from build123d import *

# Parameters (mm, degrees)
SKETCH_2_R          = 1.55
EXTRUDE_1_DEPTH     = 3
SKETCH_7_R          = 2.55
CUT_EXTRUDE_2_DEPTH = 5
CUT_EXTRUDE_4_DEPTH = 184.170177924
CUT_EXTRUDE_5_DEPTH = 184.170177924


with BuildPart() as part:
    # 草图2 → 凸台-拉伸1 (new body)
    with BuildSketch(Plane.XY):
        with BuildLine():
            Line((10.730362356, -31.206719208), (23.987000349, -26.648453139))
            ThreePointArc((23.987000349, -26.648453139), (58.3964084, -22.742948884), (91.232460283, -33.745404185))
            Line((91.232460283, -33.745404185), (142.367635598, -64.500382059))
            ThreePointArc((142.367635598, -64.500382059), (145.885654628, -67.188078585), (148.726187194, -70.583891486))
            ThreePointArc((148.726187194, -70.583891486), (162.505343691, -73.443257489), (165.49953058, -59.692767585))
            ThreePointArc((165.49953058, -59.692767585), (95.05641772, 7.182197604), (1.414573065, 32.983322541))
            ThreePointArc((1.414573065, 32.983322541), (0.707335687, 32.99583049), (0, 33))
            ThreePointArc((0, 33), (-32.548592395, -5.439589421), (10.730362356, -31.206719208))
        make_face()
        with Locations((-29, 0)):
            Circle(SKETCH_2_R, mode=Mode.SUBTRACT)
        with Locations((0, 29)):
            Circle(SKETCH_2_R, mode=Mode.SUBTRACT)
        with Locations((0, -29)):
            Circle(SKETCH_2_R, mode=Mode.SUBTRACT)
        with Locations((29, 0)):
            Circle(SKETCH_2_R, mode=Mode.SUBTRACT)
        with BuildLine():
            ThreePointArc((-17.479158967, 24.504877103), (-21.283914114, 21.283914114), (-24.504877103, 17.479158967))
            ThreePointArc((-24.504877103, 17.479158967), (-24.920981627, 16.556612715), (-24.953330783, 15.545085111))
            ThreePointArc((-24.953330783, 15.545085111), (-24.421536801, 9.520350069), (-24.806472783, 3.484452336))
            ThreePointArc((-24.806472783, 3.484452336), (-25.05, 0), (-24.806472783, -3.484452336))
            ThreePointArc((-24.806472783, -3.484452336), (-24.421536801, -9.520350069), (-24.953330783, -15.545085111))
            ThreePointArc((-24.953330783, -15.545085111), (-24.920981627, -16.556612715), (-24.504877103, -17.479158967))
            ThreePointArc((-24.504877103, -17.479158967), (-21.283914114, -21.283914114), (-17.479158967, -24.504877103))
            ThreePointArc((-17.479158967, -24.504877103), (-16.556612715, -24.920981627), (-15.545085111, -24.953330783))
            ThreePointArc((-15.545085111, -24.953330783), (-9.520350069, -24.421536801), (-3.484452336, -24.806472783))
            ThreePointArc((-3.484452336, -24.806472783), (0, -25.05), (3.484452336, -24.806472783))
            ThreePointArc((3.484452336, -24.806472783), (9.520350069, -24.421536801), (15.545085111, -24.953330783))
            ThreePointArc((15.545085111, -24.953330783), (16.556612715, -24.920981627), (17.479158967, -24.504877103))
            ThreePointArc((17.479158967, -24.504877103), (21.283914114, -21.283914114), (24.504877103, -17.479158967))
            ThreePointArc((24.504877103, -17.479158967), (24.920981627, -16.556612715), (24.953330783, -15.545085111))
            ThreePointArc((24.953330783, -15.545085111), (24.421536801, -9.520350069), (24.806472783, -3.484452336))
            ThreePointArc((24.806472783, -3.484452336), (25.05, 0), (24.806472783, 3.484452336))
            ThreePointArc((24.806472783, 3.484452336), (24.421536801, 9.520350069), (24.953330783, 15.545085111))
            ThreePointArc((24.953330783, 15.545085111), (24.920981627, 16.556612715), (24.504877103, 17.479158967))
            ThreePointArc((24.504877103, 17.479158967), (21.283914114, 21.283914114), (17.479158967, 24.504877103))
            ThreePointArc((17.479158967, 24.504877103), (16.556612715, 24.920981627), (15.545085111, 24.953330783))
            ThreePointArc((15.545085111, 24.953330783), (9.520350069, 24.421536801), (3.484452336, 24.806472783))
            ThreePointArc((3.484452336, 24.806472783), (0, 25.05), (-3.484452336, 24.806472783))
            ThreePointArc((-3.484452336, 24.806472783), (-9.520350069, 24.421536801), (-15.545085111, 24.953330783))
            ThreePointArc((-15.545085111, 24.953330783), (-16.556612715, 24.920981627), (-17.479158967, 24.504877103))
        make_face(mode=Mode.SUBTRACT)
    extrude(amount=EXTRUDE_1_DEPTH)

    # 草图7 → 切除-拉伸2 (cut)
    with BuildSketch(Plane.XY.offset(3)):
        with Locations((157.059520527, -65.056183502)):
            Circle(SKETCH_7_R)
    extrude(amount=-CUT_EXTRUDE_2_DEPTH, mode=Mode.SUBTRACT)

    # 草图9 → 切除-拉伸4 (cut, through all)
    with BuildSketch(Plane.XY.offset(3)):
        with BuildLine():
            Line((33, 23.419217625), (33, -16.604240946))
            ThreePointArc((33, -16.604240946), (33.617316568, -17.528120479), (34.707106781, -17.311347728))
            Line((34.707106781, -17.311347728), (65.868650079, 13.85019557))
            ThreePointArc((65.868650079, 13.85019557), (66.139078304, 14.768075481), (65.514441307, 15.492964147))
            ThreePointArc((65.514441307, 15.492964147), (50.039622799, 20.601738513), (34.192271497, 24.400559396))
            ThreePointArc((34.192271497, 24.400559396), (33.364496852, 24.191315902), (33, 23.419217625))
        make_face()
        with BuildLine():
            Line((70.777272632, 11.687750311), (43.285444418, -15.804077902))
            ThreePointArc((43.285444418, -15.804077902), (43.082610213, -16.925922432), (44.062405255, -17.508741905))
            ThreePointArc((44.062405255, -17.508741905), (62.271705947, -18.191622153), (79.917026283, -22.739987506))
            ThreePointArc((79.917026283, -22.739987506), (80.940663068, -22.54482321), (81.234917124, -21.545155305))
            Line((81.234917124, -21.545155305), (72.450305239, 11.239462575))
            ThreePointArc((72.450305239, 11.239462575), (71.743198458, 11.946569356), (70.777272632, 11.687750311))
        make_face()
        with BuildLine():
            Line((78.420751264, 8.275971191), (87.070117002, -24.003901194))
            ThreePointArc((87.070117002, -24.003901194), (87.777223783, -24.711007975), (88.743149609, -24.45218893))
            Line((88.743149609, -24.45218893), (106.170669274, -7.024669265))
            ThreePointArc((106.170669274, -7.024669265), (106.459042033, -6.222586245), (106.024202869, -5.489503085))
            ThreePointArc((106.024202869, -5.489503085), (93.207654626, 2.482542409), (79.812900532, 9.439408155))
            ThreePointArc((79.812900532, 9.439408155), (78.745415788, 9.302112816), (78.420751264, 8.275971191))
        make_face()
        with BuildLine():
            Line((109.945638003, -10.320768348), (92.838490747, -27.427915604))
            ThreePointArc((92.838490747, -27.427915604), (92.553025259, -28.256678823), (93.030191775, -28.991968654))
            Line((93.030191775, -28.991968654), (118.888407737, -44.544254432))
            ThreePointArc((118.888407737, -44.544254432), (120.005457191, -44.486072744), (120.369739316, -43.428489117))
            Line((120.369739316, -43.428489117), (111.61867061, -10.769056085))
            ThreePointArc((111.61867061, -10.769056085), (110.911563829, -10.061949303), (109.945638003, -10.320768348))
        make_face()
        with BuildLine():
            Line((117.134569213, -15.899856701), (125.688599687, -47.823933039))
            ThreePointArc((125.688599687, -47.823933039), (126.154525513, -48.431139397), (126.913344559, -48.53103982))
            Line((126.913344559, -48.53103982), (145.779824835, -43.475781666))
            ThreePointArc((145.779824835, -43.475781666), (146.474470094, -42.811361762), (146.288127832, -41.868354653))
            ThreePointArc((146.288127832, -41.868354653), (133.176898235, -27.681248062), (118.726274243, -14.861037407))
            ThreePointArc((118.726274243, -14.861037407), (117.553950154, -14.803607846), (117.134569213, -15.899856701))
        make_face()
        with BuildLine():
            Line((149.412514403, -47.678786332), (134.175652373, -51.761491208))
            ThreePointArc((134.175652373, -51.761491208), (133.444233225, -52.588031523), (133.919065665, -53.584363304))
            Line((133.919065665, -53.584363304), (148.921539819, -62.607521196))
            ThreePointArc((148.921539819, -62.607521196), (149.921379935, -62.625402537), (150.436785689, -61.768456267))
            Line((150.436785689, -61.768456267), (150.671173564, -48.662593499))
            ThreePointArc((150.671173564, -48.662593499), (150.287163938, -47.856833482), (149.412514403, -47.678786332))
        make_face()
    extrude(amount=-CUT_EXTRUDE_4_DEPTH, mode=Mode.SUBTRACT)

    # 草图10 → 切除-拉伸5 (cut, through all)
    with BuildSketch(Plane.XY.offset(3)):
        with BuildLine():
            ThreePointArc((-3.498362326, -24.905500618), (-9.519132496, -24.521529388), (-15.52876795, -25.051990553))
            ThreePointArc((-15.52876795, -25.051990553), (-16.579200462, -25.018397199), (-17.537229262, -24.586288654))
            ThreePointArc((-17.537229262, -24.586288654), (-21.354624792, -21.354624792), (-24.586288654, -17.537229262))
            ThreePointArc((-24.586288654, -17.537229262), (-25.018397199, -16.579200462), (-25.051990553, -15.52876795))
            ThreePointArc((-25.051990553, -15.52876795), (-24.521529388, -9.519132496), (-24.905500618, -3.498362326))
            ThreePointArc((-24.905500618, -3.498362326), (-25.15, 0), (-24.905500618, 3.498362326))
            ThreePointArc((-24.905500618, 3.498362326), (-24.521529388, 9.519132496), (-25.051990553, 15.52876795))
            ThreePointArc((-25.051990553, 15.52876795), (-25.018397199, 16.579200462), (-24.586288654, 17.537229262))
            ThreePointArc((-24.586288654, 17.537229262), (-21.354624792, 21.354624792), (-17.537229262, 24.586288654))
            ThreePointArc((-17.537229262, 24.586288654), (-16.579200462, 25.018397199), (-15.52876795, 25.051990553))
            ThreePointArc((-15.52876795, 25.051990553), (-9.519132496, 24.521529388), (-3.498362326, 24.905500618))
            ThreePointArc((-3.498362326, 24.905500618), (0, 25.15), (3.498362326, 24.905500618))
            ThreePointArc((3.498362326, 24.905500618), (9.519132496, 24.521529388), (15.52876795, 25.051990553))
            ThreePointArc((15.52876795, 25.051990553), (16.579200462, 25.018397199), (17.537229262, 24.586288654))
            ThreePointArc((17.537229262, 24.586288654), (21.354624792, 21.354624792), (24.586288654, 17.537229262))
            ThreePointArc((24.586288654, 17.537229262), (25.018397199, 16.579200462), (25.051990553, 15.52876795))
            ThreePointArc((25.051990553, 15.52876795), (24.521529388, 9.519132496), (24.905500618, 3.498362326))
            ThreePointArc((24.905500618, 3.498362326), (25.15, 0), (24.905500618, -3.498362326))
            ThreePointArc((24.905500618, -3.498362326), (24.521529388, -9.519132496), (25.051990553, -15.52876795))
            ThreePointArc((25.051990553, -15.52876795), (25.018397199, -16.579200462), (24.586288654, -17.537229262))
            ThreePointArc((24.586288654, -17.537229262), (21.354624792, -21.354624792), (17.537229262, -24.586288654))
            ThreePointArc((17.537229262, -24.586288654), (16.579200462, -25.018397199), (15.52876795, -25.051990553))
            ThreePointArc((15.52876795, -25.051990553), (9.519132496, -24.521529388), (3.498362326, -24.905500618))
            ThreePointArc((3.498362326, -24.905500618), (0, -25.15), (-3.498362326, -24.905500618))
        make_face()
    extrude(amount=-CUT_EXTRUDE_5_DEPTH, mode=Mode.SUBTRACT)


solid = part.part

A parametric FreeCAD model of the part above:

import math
import FreeCAD as App
import Part
import Sketcher

V = App.Vector
Q = App.Units.Quantity

doc = App.newDocument("Part")
body = doc.addObject("PartDesign::Body", "Body")

# Sketch on XY plane
sketch1 = body.newObject("Sketcher::SketchObject", "Sketch")
sketch1.AttachmentSupport = (doc.getObject("XY_Plane"), [""])
sketch1.MapMode = "FlatFace"
sketch1.addGeometry([
    Part.LineSegment(V(10.730362, -31.206719, 0), V(23.987, -26.648453, 0)),  # 0
    Part.ArcOfCircle(Part.Circle(V(50, -102.301106, 0), V(0, 0, 1), 80), math.radians(58.97542), math.radians(108.97542)),  # 1
    Part.LineSegment(V(91.23246, -33.745404, 0), V(142.367636, -64.500382, 0)),  # 2
    Part.ArcOfCircle(Part.Circle(V(132.059521, -81.639307, 0), V(0, 0, 1), 20), math.radians(33.55731), math.radians(58.97542)),  # 3
    Part.ArcOfCircle(Part.Circle(V(157.059521, -65.056184, 0), V(0, 0, 1), 10), math.radians(-146.44269), math.radians(32.434941)),  # 4
    Part.ArcOfCircle(Part.Circle(V(-3.30067, -166.961086, 0), V(0, 0, 1), 200), math.radians(32.434941), math.radians(88.649057)),  # 5
    Part.ArcOfCircle(Part.Circle(V(0, -27.000006, 0), V(0, 0, 1), 60.000006), math.radians(88.649057), math.radians(90)),  # 6
    Part.ArcOfCircle(Part.Circle(V(0, 0, 0), V(0, 0, 1), 33), math.radians(90), math.radians(288.97542)),  # 7
    Part.Circle(V(0, -29, 0), V(0, 0, 1), 1.55),  # 8
    Part.Circle(V(-29, 0, 0), V(0, 0, 1), 1.55),  # 9
    Part.ArcOfCircle(Part.Circle(V(0, 0, 0), V(0, 0, 1), 30.1), math.radians(125.5), math.radians(144.5)),  # 10
    Part.ArcOfCircle(Part.Circle(V(-15.969331, 22.388177, 0), V(0, 0, 1), 2.6), math.radians(80.608964), math.radians(125.5)),  # 11
    Part.ArcOfCircle(Part.Circle(V(-9.034538, 64.318579, 0), V(0, 0, 1), 39.9), math.radians(-99.391036), math.radians(-82.004236)),  # 12
    Part.ArcOfCircle(Part.Circle(V(0, 0, 0), V(0, 0, 1), 25.05), math.radians(82.004236), math.radians(97.995764)),  # 13
    Part.ArcOfCircle(Part.Circle(V(9.034538, 64.318579, 0), V(0, 0, 1), 39.9), math.radians(-97.995764), math.radians(-80.608964)),  # 14
    Part.ArcOfCircle(Part.Circle(V(15.969331, 22.388177, 0), V(0, 0, 1), 2.6), math.radians(54.5), math.radians(99.391036)),  # 15
    Part.ArcOfCircle(Part.Circle(V(0, 0, 0), V(0, 0, 1), 30.1), math.radians(35.5), math.radians(54.5)),  # 16
    Part.ArcOfCircle(Part.Circle(V(22.388177, 15.969331, 0), V(0, 0, 1), 2.6), math.radians(-9.391036), math.radians(35.5)),  # 17
    Part.ArcOfCircle(Part.Circle(V(64.318579, 9.034538, 0), V(0, 0, 1), 39.9), math.radians(170.608964), math.radians(187.995764)),  # 18
    Part.ArcOfCircle(Part.Circle(V(0, 0, 0), V(0, 0, 1), 25.05), math.radians(-7.995764), math.radians(7.995764)),  # 19
    Part.ArcOfCircle(Part.Circle(V(64.318579, -9.034538, 0), V(0, 0, 1), 39.9), math.radians(172.004236), math.radians(189.391036)),  # 20
    Part.ArcOfCircle(Part.Circle(V(22.388177, -15.969331, 0), V(0, 0, 1), 2.6), math.radians(-35.5), math.radians(9.391036)),  # 21
    Part.ArcOfCircle(Part.Circle(V(0, 0, 0), V(0, 0, 1), 30.1), math.radians(-54.5), math.radians(-35.5)),  # 22
    Part.ArcOfCircle(Part.Circle(V(15.969331, -22.388177, 0), V(0, 0, 1), 2.6), math.radians(-99.391036), math.radians(-54.5)),  # 23
    Part.ArcOfCircle(Part.Circle(V(9.034538, -64.318579, 0), V(0, 0, 1), 39.9), math.radians(80.608964), math.radians(97.995764)),  # 24
    Part.ArcOfCircle(Part.Circle(V(0, 0, 0), V(0, 0, 1), 25.05), math.radians(-97.995764), math.radians(-82.004236)),  # 25
    Part.ArcOfCircle(Part.Circle(V(-9.034538, -64.318579, 0), V(0, 0, 1), 39.9), math.radians(82.004236), math.radians(99.391036)),  # 26
    Part.ArcOfCircle(Part.Circle(V(-15.969331, -22.388177, 0), V(0, 0, 1), 2.6), math.radians(-125.5), math.radians(-80.608964)),  # 27
    Part.ArcOfCircle(Part.Circle(V(0, 0, 0), V(0, 0, 1), 30.1), math.radians(-144.5), math.radians(-125.5)),  # 28
    Part.ArcOfCircle(Part.Circle(V(-22.388177, -15.969331, 0), V(0, 0, 1), 2.6), math.radians(170.608964), math.radians(215.5)),  # 29
    Part.ArcOfCircle(Part.Circle(V(-64.318579, -9.034538, 0), V(0, 0, 1), 39.9), math.radians(-9.391036), math.radians(7.995764)),  # 30
    Part.ArcOfCircle(Part.Circle(V(0, 0, 0), V(0, 0, 1), 25.05), math.radians(172.004236), math.radians(187.995764)),  # 31
    Part.ArcOfCircle(Part.Circle(V(-64.318579, 9.034538, 0), V(0, 0, 1), 39.9), math.radians(-7.995764), math.radians(9.391036)),  # 32
    Part.ArcOfCircle(Part.Circle(V(-22.388177, 15.969331, 0), V(0, 0, 1), 2.6), math.radians(144.5), math.radians(189.391036)),  # 33
    Part.Circle(V(29, 0, 0), V(0, 0, 1), 1.55),  # 34
    Part.Circle(V(0, 29, 0), V(0, 0, 1), 1.55),  # 35
], False)
sketch1.addConstraint([
    Sketcher.Constraint("Tangent", 0, 2, 1, 2),
    Sketcher.Constraint("Tangent", 1, 1, 2, 1),
    Sketcher.Constraint("Tangent", 2, 2, 3, 2),
    Sketcher.Constraint("Tangent", 3, 1, 4, 1),
    Sketcher.Constraint("Tangent", 4, 2, 5, 1),
    Sketcher.Constraint("Tangent", 5, 2, 6, 1),
    Sketcher.Constraint("Tangent", 6, 2, 7, 1),
    Sketcher.Constraint("Tangent", 7, 2, 0, 1),
    Sketcher.Constraint("Tangent", 10, 1, 11, 2),
    Sketcher.Constraint("Tangent", 11, 1, 12, 1),
    Sketcher.Constraint("Tangent", 12, 2, 13, 2),
    Sketcher.Constraint("Tangent", 13, 1, 14, 1),
    Sketcher.Constraint("Tangent", 14, 2, 15, 2),
    Sketcher.Constraint("Tangent", 15, 1, 16, 2),
    Sketcher.Constraint("Tangent", 16, 1, 17, 2),
    Sketcher.Constraint("Tangent", 17, 1, 18, 1),
    Sketcher.Constraint("Tangent", 18, 2, 19, 2),
    Sketcher.Constraint("Tangent", 19, 1, 20, 1),
    Sketcher.Constraint("Tangent", 20, 2, 21, 2),
    Sketcher.Constraint("Tangent", 21, 1, 22, 2),
    Sketcher.Constraint("Tangent", 22, 1, 23, 2),
    Sketcher.Constraint("Tangent", 23, 1, 24, 1),
    Sketcher.Constraint("Tangent", 24, 2, 25, 2),
    Sketcher.Constraint("Tangent", 25, 1, 26, 1),
    Sketcher.Constraint("Tangent", 26, 2, 27, 2),
    Sketcher.Constraint("Tangent", 27, 1, 28, 2),
    Sketcher.Constraint("Tangent", 28, 1, 29, 2),
    Sketcher.Constraint("Tangent", 29, 1, 30, 1),
    Sketcher.Constraint("Tangent", 30, 2, 31, 2),
    Sketcher.Constraint("Tangent", 31, 1, 32, 1),
    Sketcher.Constraint("Tangent", 32, 2, 33, 2),
    Sketcher.Constraint("Tangent", 33, 1, 10, 2),
    Sketcher.Constraint("Coincident", 7, 3, -1, 1),
    Sketcher.Constraint("Coincident", 10, 3, -1, 1),
    Sketcher.Constraint("Coincident", 13, 3, -1, 1),
    Sketcher.Constraint("Coincident", 16, 3, -1, 1),
    Sketcher.Constraint("Coincident", 19, 3, -1, 1),
    Sketcher.Constraint("Coincident", 22, 3, -1, 1),
    Sketcher.Constraint("Coincident", 25, 3, -1, 1),
    Sketcher.Constraint("Coincident", 28, 3, -1, 1),
    Sketcher.Constraint("Coincident", 31, 3, -1, 1),
    Sketcher.Constraint("Equal", 8, 9),
    Sketcher.Constraint("Equal", 12, 14),
    Sketcher.Constraint("Equal", 11, 15),
    Sketcher.Constraint("Equal", 10, 16),
    Sketcher.Constraint("Equal", 15, 17),
    Sketcher.Constraint("Equal", 14, 18),
    Sketcher.Constraint("Equal", 13, 19),
    Sketcher.Constraint("Equal", 18, 20),
    Sketcher.Constraint("Equal", 17, 21),
    Sketcher.Constraint("Equal", 16, 22),
    Sketcher.Constraint("Equal", 21, 23),
    Sketcher.Constraint("Equal", 20, 24),
    Sketcher.Constraint("Equal", 19, 25),
    Sketcher.Constraint("Equal", 24, 26),
    Sketcher.Constraint("Equal", 23, 27),
    Sketcher.Constraint("Equal", 22, 28),
    Sketcher.Constraint("Equal", 27, 29),
    Sketcher.Constraint("Equal", 26, 30),
    Sketcher.Constraint("Equal", 25, 31),
    Sketcher.Constraint("Equal", 30, 32),
    Sketcher.Constraint("Equal", 29, 33),
    Sketcher.Constraint("Equal", 9, 34),
    Sketcher.Constraint("Equal", 34, 35),
    Sketcher.Constraint("Symmetric", 9, 3, 34, 3, -1, 1),
    Sketcher.Constraint("Symmetric", 8, 3, 35, 3, -1, 1),
    Sketcher.Constraint("PointOnObject", 6, 3, -2),
    Sketcher.Constraint("PointOnObject", 8, 3, -2),
    Sketcher.Constraint("PointOnObject", 9, 3, -1),
    Sketcher.Constraint("Horizontal", 12, 3, 14, 3),
    Sketcher.Constraint("Horizontal", 24, 3, 26, 3),
    Sketcher.Constraint("Horizontal", 21, 3, 29, 3),
    Sketcher.Constraint("Horizontal", 18, 3, 32, 3),
    Sketcher.Constraint("Vertical", 18, 3, 20, 3),
    Sketcher.Constraint("Vertical", 15, 3, 23, 3),
    Sketcher.Constraint("Radius", 1, 80.0),
    Sketcher.Constraint("Radius", 3, 20.0),
    Sketcher.Constraint("Radius", 4, 10.0),
    Sketcher.Constraint("Radius", 5, 200.0),
    Sketcher.Constraint("Radius", 7, 33.0),
    Sketcher.Constraint("Diameter", 8, 3.1),
    Sketcher.Constraint("Radius", 10, 30.1),
    Sketcher.Constraint("Radius", 11, 2.6),
    Sketcher.Constraint("Radius", 12, 39.9),
    Sketcher.Constraint("Radius", 13, 25.05),
    Sketcher.Constraint("DistanceX", -1, 1, 1, 3, 50.0),
    Sketcher.Constraint("DistanceY", 8, 3, -1, 1, 29.0),
    Sketcher.Constraint("DistanceX", 9, 3, -1, 1, 29.0),
    Sketcher.Constraint("DistanceX", -1, 1, 0, 2, 23.987),
    Sketcher.Constraint("Radius", 6, 60.000006),
    Sketcher.Constraint("Distance", 2, 59.67139),
    Sketcher.Constraint("DistanceX", -1, 1, 3, 3, 132.059521),
    Sketcher.Constraint("DistanceX", -1, 1, 4, 3, 157.059521),
    Sketcher.Constraint("DistanceX", 11, 3, -1, 1, 15.969331),
    Sketcher.Constraint("DistanceY", -1, 1, 17, 3, 15.969331),
])
pad1 = body.newObject("PartDesign::Pad", "Pad")
pad1.Profile = sketch1
pad1.Length = 3

# Sketch on XY plane
sketch2 = body.newObject("Sketcher::SketchObject", "Sketch001")
sketch2.AttachmentSupport = (doc.getObject("XY_Plane"), [""])
sketch2.MapMode = "FlatFace"
sketch2.AttachmentOffset = App.Placement(V(0, 0, 3), App.Rotation())
sketch2.addGeometry(Part.Circle(V(157.059521, -65.056184, 0), V(0, 0, 1), 2.55), False)
sketch2.addConstraint([
    Sketcher.Constraint("Diameter", 0, 5.1),
    Sketcher.Constraint("DistanceX", -1, 1, 0, 3, 157.059521),
    Sketcher.Constraint("DistanceY", 0, 3, -1, 1, 65.056184),
])
pocket1 = body.newObject("PartDesign::Pocket", "Pocket")
pocket1.Profile = sketch2
pocket1.Length = 5

# Sketch on XY plane
sketch3 = body.newObject("Sketcher::SketchObject", "Sketch002")
sketch3.AttachmentSupport = (doc.getObject("XY_Plane"), [""])
sketch3.MapMode = "FlatFace"
sketch3.AttachmentOffset = App.Placement(V(0, 0, 3), App.Rotation())
sketch3.addGeometry([
    Part.LineSegment(V(33, 23.419218, 0), V(33, -16.604241, 0)),  # 0
    Part.ArcOfCircle(Part.Circle(V(34, -16.604241, 0), V(0, 0, 1), 1), math.radians(180), math.radians(315)),  # 1
    Part.LineSegment(V(34.707107, -17.311348, 0), V(65.86865, 13.850196, 0)),  # 2
    Part.ArcOfCircle(Part.Circle(V(65.161543, 14.557302, 0), V(0, 0, 1), 1), math.radians(-45), math.radians(69.335327)),  # 3
    Part.ArcOfCircle(Part.Circle(V(-3.30067, -166.961086, 0), V(0, 0, 1), 195), math.radians(69.335327), math.radians(78.914624)),  # 4
    Part.ArcOfCircle(Part.Circle(V(34, 23.419218, 0), V(0, 0, 1), 1), math.radians(78.914624), math.radians(180)),  # 5
    Part.LineSegment(V(70.777273, 11.68775, 0), V(43.285444, -15.804078, 0)),  # 6
    Part.ArcOfCircle(Part.Circle(V(43.992551, -16.511185, 0), V(0, 0, 1), 1), math.radians(135), math.radians(274.005605)),  # 7
    Part.ArcOfCircle(Part.Circle(V(50, -102.301106, 0), V(0, 0, 1), 85), math.radians(69.392449), math.radians(94.005605)),  # 8
    Part.ArcOfCircle(Part.Circle(V(80.268991, -21.803974, 0), V(0, 0, 1), 1), math.radians(-110.607551), math.radians(15)),  # 9
    Part.LineSegment(V(81.234917, -21.545155, 0), V(72.450305, 11.239463, 0)),  # 10
    Part.ArcOfCircle(Part.Circle(V(71.484379, 10.980644, 0), V(0, 0, 1), 1), math.radians(15), math.radians(135)),  # 11
    Part.LineSegment(V(78.420751, 8.275971, 0), V(87.070117, -24.003901, 0)),  # 12
    Part.ArcOfCircle(Part.Circle(V(88.036043, -23.745082, 0), V(0, 0, 1), 1), math.radians(-165), math.radians(-45)),  # 13
    Part.LineSegment(V(88.74315, -24.452189, 0), V(106.170669, -7.024669, 0)),  # 14
    Part.ArcOfCircle(Part.Circle(V(105.463562, -6.317562, 0), V(0, 0, 1), 1), math.radians(-45), math.radians(55.899904)),  # 15
    Part.ArcOfCircle(Part.Circle(V(-3.300671, -166.961086, 0), V(0, 0, 1), 195), math.radians(55.899904), math.radians(64.771872)),  # 16
    Part.ArcOfCircle(Part.Circle(V(79.386677, 8.53479, 0), V(0, 0, 1), 1), math.radians(64.771872), math.radians(195)),  # 17
    Part.LineSegment(V(109.945638, -10.320768, 0), V(92.838491, -27.427916, 0)),  # 18
    Part.ArcOfCircle(Part.Circle(V(93.545598, -28.135022, 0), V(0, 0, 1), 1), math.radians(135), math.radians(238.97542)),  # 19
    Part.LineSegment(V(93.030192, -28.991969, 0), V(118.888408, -44.544254, 0)),  # 20
    Part.ArcOfCircle(Part.Circle(V(119.403813, -43.687308, 0), V(0, 0, 1), 1), math.radians(-121.02458), math.radians(15)),  # 21
    Part.LineSegment(V(120.369739, -43.428489, 0), V(111.618671, -10.769056, 0)),  # 22
    Part.ArcOfCircle(Part.Circle(V(110.652745, -11.027875, 0), V(0, 0, 1), 1), math.radians(15), math.radians(135)),  # 23
    Part.LineSegment(V(117.134569, -15.899857, 0), V(125.6886, -47.823933, 0)),  # 24
    Part.ArcOfCircle(Part.Circle(V(126.654526, -47.565114, 0), V(0, 0, 1), 1), math.radians(-165), math.radians(-75)),  # 25
    Part.LineSegment(V(126.913345, -48.53104, 0), V(145.779825, -43.475782, 0)),  # 26
    Part.ArcOfCircle(Part.Circle(V(145.521006, -42.509856, 0), V(0, 0, 1), 1), math.radians(-75), math.radians(39.903851)),  # 27
    Part.ArcOfCircle(Part.Circle(V(-3.300671, -166.961086, 0), V(0, 0, 1), 195), math.radians(39.90385), math.radians(51.260598)),  # 28
    Part.ArcOfCircle(Part.Circle(V(118.100495, -15.641038, 0), V(0, 0, 1), 1), math.radians(51.260598), math.radians(195)),  # 29
    Part.LineSegment(V(149.412514, -47.678786, 0), V(134.175652, -51.761491, 0)),  # 30
    Part.ArcOfCircle(Part.Circle(V(134.434471, -52.727417, 0), V(0, 0, 1), 1), math.radians(105), math.radians(238.97542)),  # 31
    Part.LineSegment(V(133.919066, -53.584363, 0), V(148.92154, -62.607521, 0)),  # 32
    Part.ArcOfCircle(Part.Circle(V(149.436946, -61.750575, 0), V(0, 0, 1), 1), math.radians(-121.02458), math.radians(-1.02458)),  # 33
    Part.LineSegment(V(150.436786, -61.768456, 0), V(150.671174, -48.662593, 0)),  # 34
    Part.ArcOfCircle(Part.Circle(V(149.671333, -48.644712, 0), V(0, 0, 1), 1), math.radians(-1.02458), math.radians(105)),  # 35
], False)
sketch3.addConstraint([
    Sketcher.Constraint("Tangent", 0, 2, 1, 1),
    Sketcher.Constraint("Tangent", 1, 2, 2, 1),
    Sketcher.Constraint("Tangent", 2, 2, 3, 1),
    Sketcher.Constraint("Tangent", 3, 2, 4, 1),
    Sketcher.Constraint("Tangent", 4, 2, 5, 1),
    Sketcher.Constraint("Tangent", 5, 2, 0, 1),
    Sketcher.Constraint("Tangent", 6, 2, 7, 1),
    Sketcher.Constraint("Tangent", 7, 2, 8, 2),
    Sketcher.Constraint("Tangent", 8, 1, 9, 1),
    Sketcher.Constraint("Tangent", 9, 2, 10, 1),
    Sketcher.Constraint("Tangent", 10, 2, 11, 1),
    Sketcher.Constraint("Tangent", 11, 2, 6, 1),
    Sketcher.Constraint("Tangent", 12, 2, 13, 1),
    Sketcher.Constraint("Tangent", 13, 2, 14, 1),
    Sketcher.Constraint("Tangent", 14, 2, 15, 1),
    Sketcher.Constraint("Tangent", 15, 2, 16, 1),
    Sketcher.Constraint("Tangent", 16, 2, 17, 1),
    Sketcher.Constraint("Tangent", 17, 2, 12, 1),
    Sketcher.Constraint("Tangent", 18, 2, 19, 1),
    Sketcher.Constraint("Tangent", 19, 2, 20, 1),
    Sketcher.Constraint("Tangent", 20, 2, 21, 1),
    Sketcher.Constraint("Tangent", 21, 2, 22, 1),
    Sketcher.Constraint("Tangent", 22, 2, 23, 1),
    Sketcher.Constraint("Tangent", 23, 2, 18, 1),
    Sketcher.Constraint("Tangent", 24, 2, 25, 1),
    Sketcher.Constraint("Tangent", 25, 2, 26, 1),
    Sketcher.Constraint("Tangent", 26, 2, 27, 1),
    Sketcher.Constraint("Tangent", 27, 2, 28, 1),
    Sketcher.Constraint("Tangent", 28, 2, 29, 1),
    Sketcher.Constraint("Tangent", 29, 2, 24, 1),
    Sketcher.Constraint("Tangent", 30, 2, 31, 1),
    Sketcher.Constraint("Tangent", 31, 2, 32, 1),
    Sketcher.Constraint("Tangent", 32, 2, 33, 1),
    Sketcher.Constraint("Tangent", 33, 2, 34, 1),
    Sketcher.Constraint("Tangent", 34, 2, 35, 1),
    Sketcher.Constraint("Tangent", 35, 2, 30, 1),
    Sketcher.Constraint("Vertical", 0),
    Sketcher.Constraint("Coincident", 16, 3, 4, 3),
    Sketcher.Constraint("Coincident", 28, 3, 4, 3),
    Sketcher.Constraint("Equal", 1, 3),
    Sketcher.Constraint("Equal", 3, 5),
    Sketcher.Constraint("Equal", 5, 7),
    Sketcher.Constraint("Equal", 7, 9),
    Sketcher.Constraint("Equal", 9, 11),
    Sketcher.Constraint("Equal", 11, 13),
    Sketcher.Constraint("Equal", 13, 15),
    Sketcher.Constraint("Equal", 4, 16),
    Sketcher.Constraint("Equal", 15, 17),
    Sketcher.Constraint("Equal", 17, 19),
    Sketcher.Constraint("Equal", 19, 21),
    Sketcher.Constraint("Equal", 21, 23),
    Sketcher.Constraint("Equal", 23, 25),
    Sketcher.Constraint("Equal", 25, 27),
    Sketcher.Constraint("Equal", 16, 28),
    Sketcher.Constraint("Equal", 27, 29),
    Sketcher.Constraint("Equal", 29, 31),
    Sketcher.Constraint("Equal", 31, 33),
    Sketcher.Constraint("Equal", 33, 35),
    Sketcher.Constraint("Parallel", 2, 6),
    Sketcher.Constraint("Parallel", 10, 12),
    Sketcher.Constraint("Parallel", 6, 14),
    Sketcher.Constraint("Parallel", 14, 18),
    Sketcher.Constraint("Parallel", 12, 22),
    Sketcher.Constraint("Parallel", 22, 24),
    Sketcher.Constraint("Perpendicular", 24, 26),
    Sketcher.Constraint("Parallel", 26, 30),
    Sketcher.Constraint("Parallel", 20, 32),
    Sketcher.Constraint("Radius", 1, 1.0),
    Sketcher.Constraint("Radius", 4, 195.0),
    Sketcher.Constraint("Radius", 8, 85.0),
    Sketcher.Constraint("Angle", 2, Q("45 deg")),
    Sketcher.Constraint("Angle", 10, Q("105 deg")),
    Sketcher.Constraint("DistanceX", -1, 1, 1, 3, 34.0),
    Sketcher.Constraint("DistanceX", -1, 1, 8, 3, 50.0),
    Sketcher.Constraint("DistanceX", 14, 2, 22, 2, 5.448001),
    Sketcher.Constraint("Distance", 32, 17.506902),
    Sketcher.Constraint("DistanceY", 0, 2, 0, 1, 40.023459),
    Sketcher.Constraint("DistanceY", 12, 2, -1, 1, 24.003901),
    Sketcher.Constraint("DistanceX", -1, 1, 16, 2, 79.812901),
    Sketcher.Constraint("DistanceX", -1, 1, 24, 2, 125.6886),
    Sketcher.Constraint("DistanceY", 4, 3, 7, 3, 150.449901),
    Sketcher.Constraint("DistanceX", 3, 3, 13, 3, 22.8745),
    Sketcher.Constraint("DistanceY", 21, 3, 17, 3, 52.222098),
    Sketcher.Constraint("DistanceX", 13, 3, 23, 3, 22.616702),
    Sketcher.Constraint("DistanceY", 9, 3, 23, 3, 10.776099),
    Sketcher.Constraint("DistanceY", 35, 3, 25, 3, 1.079598),
    Sketcher.Constraint("DistanceX", 7, 3, 2, 2, 21.876099),
    Sketcher.Constraint("DistanceY", 10, 2, 3, 2, 4.253502),
    Sketcher.Constraint("DistanceX", 18, 2, 19, 2, 0.191701),
    Sketcher.Constraint("DistanceX", 20, 2, 27, 3, 26.632598),
    Sketcher.Constraint("Distance", 30, 15.77436),
    Sketcher.Constraint("DistanceX", -1, 1, 31, 3, 134.434471),
])
pocket2 = body.newObject("PartDesign::Pocket", "Pocket001")
pocket2.Profile = sketch3
pocket2.Type = "ThroughAll"

# Sketch on XY plane
sketch4 = body.newObject("Sketcher::SketchObject", "Sketch003")
sketch4.AttachmentSupport = (doc.getObject("XY_Plane"), [""])
sketch4.MapMode = "FlatFace"
sketch4.AttachmentOffset = App.Placement(V(0, 0, 3), App.Rotation())
sketch4.addGeometry([
    Part.ArcOfCircle(Part.Circle(V(-9.034538, -64.318579, 0), V(0, 0, 1), 39.8), math.radians(82.004236), math.radians(99.391036)),  # 0
    Part.ArcOfCircle(Part.Circle(V(0, 0, 0), V(0, 0, 1), 25.15), math.radians(-97.995764), math.radians(-82.004236)),  # 1
    Part.ArcOfCircle(Part.Circle(V(9.034538, -64.318579, 0), V(0, 0, 1), 39.8), math.radians(80.608964), math.radians(97.995764)),  # 2
    Part.ArcOfCircle(Part.Circle(V(15.969331, -22.388177, 0), V(0, 0, 1), 2.7), math.radians(-99.391036), math.radians(-54.5)),  # 3
    Part.ArcOfCircle(Part.Circle(V(0, 0, 0), V(0, 0, 1), 30.2), math.radians(-54.5), math.radians(-35.5)),  # 4
    Part.ArcOfCircle(Part.Circle(V(22.388177, -15.969331, 0), V(0, 0, 1), 2.7), math.radians(-35.5), math.radians(9.391036)),  # 5
    Part.ArcOfCircle(Part.Circle(V(64.318579, -9.034538, 0), V(0, 0, 1), 39.8), math.radians(172.004236), math.radians(189.391036)),  # 6
    Part.ArcOfCircle(Part.Circle(V(0, 0, 0), V(0, 0, 1), 25.15), math.radians(-7.995764), math.radians(7.995764)),  # 7
    Part.ArcOfCircle(Part.Circle(V(64.318579, 9.034538, 0), V(0, 0, 1), 39.8), math.radians(170.608964), math.radians(187.995764)),  # 8
    Part.ArcOfCircle(Part.Circle(V(22.388177, 15.969331, 0), V(0, 0, 1), 2.7), math.radians(-9.391036), math.radians(35.5)),  # 9
    Part.ArcOfCircle(Part.Circle(V(0, 0, 0), V(0, 0, 1), 30.2), math.radians(35.5), math.radians(54.5)),  # 10
    Part.ArcOfCircle(Part.Circle(V(15.969331, 22.388177, 0), V(0, 0, 1), 2.7), math.radians(54.5), math.radians(99.391036)),  # 11
    Part.ArcOfCircle(Part.Circle(V(9.034538, 64.318579, 0), V(0, 0, 1), 39.8), math.radians(-97.995764), math.radians(-80.608964)),  # 12
    Part.ArcOfCircle(Part.Circle(V(0, 0, 0), V(0, 0, 1), 25.15), math.radians(82.004236), math.radians(97.995764)),  # 13
    Part.ArcOfCircle(Part.Circle(V(-9.034538, 64.318579, 0), V(0, 0, 1), 39.8), math.radians(-99.391036), math.radians(-82.004236)),  # 14
    Part.ArcOfCircle(Part.Circle(V(-15.969331, 22.388177, 0), V(0, 0, 1), 2.7), math.radians(80.608964), math.radians(125.5)),  # 15
    Part.ArcOfCircle(Part.Circle(V(0, 0, 0), V(0, 0, 1), 30.2), math.radians(125.5), math.radians(144.5)),  # 16
    Part.ArcOfCircle(Part.Circle(V(-22.388177, 15.969331, 0), V(0, 0, 1), 2.7), math.radians(144.5), math.radians(189.391036)),  # 17
    Part.ArcOfCircle(Part.Circle(V(-64.318579, 9.034538, 0), V(0, 0, 1), 39.8), math.radians(-7.995764), math.radians(9.391036)),  # 18
    Part.ArcOfCircle(Part.Circle(V(0, 0, 0), V(0, 0, 1), 25.15), math.radians(172.004236), math.radians(187.995764)),  # 19
    Part.ArcOfCircle(Part.Circle(V(-64.318579, -9.034538, 0), V(0, 0, 1), 39.8), math.radians(-9.391036), math.radians(7.995764)),  # 20
    Part.ArcOfCircle(Part.Circle(V(-22.388177, -15.969331, 0), V(0, 0, 1), 2.7), math.radians(170.608964), math.radians(215.5)),  # 21
    Part.ArcOfCircle(Part.Circle(V(0, 0, 0), V(0, 0, 1), 30.2), math.radians(-144.5), math.radians(-125.5)),  # 22
    Part.ArcOfCircle(Part.Circle(V(-15.969331, -22.388177, 0), V(0, 0, 1), 2.7), math.radians(-125.5), math.radians(-80.608964)),  # 23
], False)
sketch4.addConstraint([
    Sketcher.Constraint("Tangent", 0, 1, 1, 1),
    Sketcher.Constraint("Tangent", 1, 2, 2, 2),
    Sketcher.Constraint("Tangent", 2, 1, 3, 1),
    Sketcher.Constraint("Tangent", 3, 2, 4, 1),
    Sketcher.Constraint("Tangent", 4, 2, 5, 1),
    Sketcher.Constraint("Tangent", 5, 2, 6, 2),
    Sketcher.Constraint("Tangent", 6, 1, 7, 1),
    Sketcher.Constraint("Tangent", 7, 2, 8, 2),
    Sketcher.Constraint("Tangent", 8, 1, 9, 1),
    Sketcher.Constraint("Tangent", 9, 2, 10, 1),
    Sketcher.Constraint("Tangent", 10, 2, 11, 1),
    Sketcher.Constraint("Tangent", 11, 2, 12, 2),
    Sketcher.Constraint("Tangent", 12, 1, 13, 1),
    Sketcher.Constraint("Tangent", 13, 2, 14, 2),
    Sketcher.Constraint("Tangent", 14, 1, 15, 1),
    Sketcher.Constraint("Tangent", 15, 2, 16, 1),
    Sketcher.Constraint("Tangent", 16, 2, 17, 1),
    Sketcher.Constraint("Tangent", 17, 2, 18, 2),
    Sketcher.Constraint("Tangent", 18, 1, 19, 1),
    Sketcher.Constraint("Tangent", 19, 2, 20, 2),
    Sketcher.Constraint("Tangent", 20, 1, 21, 1),
    Sketcher.Constraint("Tangent", 21, 2, 22, 1),
    Sketcher.Constraint("Tangent", 22, 2, 23, 1),
    Sketcher.Constraint("Tangent", 23, 2, 0, 2),
    Sketcher.Constraint("Coincident", 1, 3, -1, 1),
    Sketcher.Constraint("Coincident", 4, 3, -1, 1),
    Sketcher.Constraint("Coincident", 7, 3, -1, 1),
    Sketcher.Constraint("Coincident", 10, 3, -1, 1),
    Sketcher.Constraint("Coincident", 13, 3, -1, 1),
    Sketcher.Constraint("Coincident", 16, 3, -1, 1),
    Sketcher.Constraint("Coincident", 19, 3, -1, 1),
    Sketcher.Constraint("Coincident", 22, 3, -1, 1),
    Sketcher.Constraint("Equal", 0, 2),
    Sketcher.Constraint("Equal", 3, 5),
    Sketcher.Constraint("Equal", 2, 6),
    Sketcher.Constraint("Equal", 1, 7),
    Sketcher.Constraint("Equal", 6, 8),
    Sketcher.Constraint("Equal", 5, 9),
    Sketcher.Constraint("Equal", 4, 10),
    Sketcher.Constraint("Equal", 9, 11),
    Sketcher.Constraint("Equal", 8, 12),
    Sketcher.Constraint("Equal", 7, 13),
    Sketcher.Constraint("Equal", 12, 14),
    Sketcher.Constraint("Equal", 11, 15),
    Sketcher.Constraint("Equal", 10, 16),
    Sketcher.Constraint("Equal", 15, 17),
    Sketcher.Constraint("Equal", 14, 18),
    Sketcher.Constraint("Equal", 13, 19),
    Sketcher.Constraint("Equal", 18, 20),
    Sketcher.Constraint("Equal", 17, 21),
    Sketcher.Constraint("Equal", 16, 22),
    Sketcher.Constraint("Equal", 21, 23),
    Sketcher.Constraint("Horizontal", 0, 3, 2, 3),
    Sketcher.Constraint("Horizontal", 12, 3, 14, 3),
    Sketcher.Constraint("Horizontal", 9, 3, 17, 3),
    Sketcher.Constraint("Horizontal", 6, 3, 20, 3),
    Sketcher.Constraint("Vertical", 6, 3, 8, 3),
    Sketcher.Constraint("Vertical", 3, 3, 11, 3),
    Sketcher.Constraint("Radius", 0, 39.8),
    Sketcher.Constraint("Radius", 3, 2.7),
    Sketcher.Constraint("Radius", 4, 30.2),
    Sketcher.Constraint("Radius", 1, 25.15),
    Sketcher.Constraint("DistanceY", 0, 1, -1, 1, 24.905501),
    Sketcher.Constraint("DistanceX", -1, 1, 6, 1, 24.905501),
])
pocket3 = body.newObject("PartDesign::Pocket", "Pocket002")
pocket3.Profile = sketch4
pocket3.Type = "ThroughAll"

doc.recompute()
